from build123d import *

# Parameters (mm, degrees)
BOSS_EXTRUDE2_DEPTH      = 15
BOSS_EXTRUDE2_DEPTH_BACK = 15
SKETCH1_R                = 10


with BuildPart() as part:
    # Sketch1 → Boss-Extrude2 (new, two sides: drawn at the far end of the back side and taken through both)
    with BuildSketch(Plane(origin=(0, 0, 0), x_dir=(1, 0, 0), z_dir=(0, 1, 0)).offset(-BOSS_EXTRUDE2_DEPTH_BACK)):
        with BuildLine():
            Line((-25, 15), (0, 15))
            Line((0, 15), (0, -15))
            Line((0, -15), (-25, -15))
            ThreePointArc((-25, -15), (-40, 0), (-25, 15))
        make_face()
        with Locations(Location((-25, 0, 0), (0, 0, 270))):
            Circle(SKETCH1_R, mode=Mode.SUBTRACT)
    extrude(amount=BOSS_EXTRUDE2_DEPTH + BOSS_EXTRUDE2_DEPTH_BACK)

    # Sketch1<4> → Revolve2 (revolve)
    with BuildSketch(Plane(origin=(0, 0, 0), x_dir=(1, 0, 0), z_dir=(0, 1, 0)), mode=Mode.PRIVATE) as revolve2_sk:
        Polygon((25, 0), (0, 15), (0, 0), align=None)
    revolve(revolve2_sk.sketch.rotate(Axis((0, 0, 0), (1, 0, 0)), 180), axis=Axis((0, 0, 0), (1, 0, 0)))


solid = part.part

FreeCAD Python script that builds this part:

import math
import FreeCAD as App
import Part
import Sketcher
from FreeCAD import Vector
Q = App.Units.Quantity


def add_polygon(sketch, points):
    """Adds a closed chain of lines whose ends are joined by coincident constraints."""
    first, n = sketch.GeometryCount, len(points)
    for a, b in zip(points, points[1:] + points[:1]):
        sketch.addGeometry(Part.LineSegment(App.Vector(*a, 0), App.Vector(*b, 0)), False)
    for i in range(n):
        sketch.addConstraint(Sketcher.Constraint("Coincident", first + i, 2, first + (i + 1) % n, 1))

doc = App.newDocument("Part")
body = doc.addObject("PartDesign::Body", "Body")

sketch1 = doc.addObject("Sketcher::SketchObject", "Sketch")
body.addObject(sketch1)
sketch1.AttachmentSupport = (doc.XZ_Plane, [""])
sketch1.MapMode = "FlatFace"
sketch1.addGeometry([
    Part.LineSegment(Vector(0, -15, 0), Vector(-25, -15, 0)),
    Part.ArcOfCircle(Part.Circle(Vector(-25, 0, 0), Vector(0, 0, 1), 15), math.radians(90), math.radians(270)),
    Part.LineSegment(Vector(-25, 15, 0), Vector(0, 15, 0)),
    Part.LineSegment(Vector(0, 15, 0), Vector(0, -15, 0)),
    Part.Circle(Vector(-25, 0, 0), Vector(0, 0, 1), 10),
], False)
sketch1.addConstraint([
    Sketcher.Constraint("Tangent", 0, 2, 1, 2),
    Sketcher.Constraint("Tangent", 1, 1, 2, 1),
    Sketcher.Constraint("Coincident", 2, 2, 3, 1),
    Sketcher.Constraint("Coincident", 3, 2, 0, 1),
    Sketcher.Constraint("Horizontal", 0),
    Sketcher.Constraint("Horizontal", 2),
    Sketcher.Constraint("Vertical", 3),
    Sketcher.Constraint("Coincident", 4, 3, 1, 3),
    Sketcher.Constraint("Symmetric", 2, 2, 3, 2, -1, 1),
    Sketcher.Constraint("Diameter", 4, Q("20 mm")),
    Sketcher.Constraint("Radius", 1, Q("15 mm")),
    Sketcher.Constraint("DistanceX", 0, 2, 0, 1, Q("25 mm")),
])
pad1 = doc.addObject("PartDesign::Pad", "Pad")
body.addObject(pad1)
pad1.Profile = sketch1
pad1.Type = "TwoLengths"
pad1.Length = 15
pad1.Length2 = 15
pad1.Reversed = True

sketch2 = doc.addObject("Sketcher::SketchObject", "Sketch001")
body.addObject(sketch2)
sketch2.AttachmentSupport = (doc.XZ_Plane, [""])
sketch2.MapMode = "FlatFace"
add_polygon(sketch2, [(25, 0), (0, -15), (0, 0)])
sketch2.addConstraint([
    Sketcher.Constraint("Vertical", 1),
    Sketcher.Constraint("Horizontal", 2),
    Sketcher.Constraint("Coincident", 1, 2, -1, 1),
    Sketcher.Constraint("DistanceX", 2, 1, 2, 2, Q("25 mm")),
    Sketcher.Constraint("DistanceY", 1, 1, 1, 2, Q("15 mm")),
])
revolution = doc.addObject("PartDesign::Revolution", "Revolution")
body.addObject(revolution)
revolution.Profile = sketch2
revolution.ReferenceAxis = (sketch2, ["H_Axis"])
revolution.Angle = 360

doc.recompute()
